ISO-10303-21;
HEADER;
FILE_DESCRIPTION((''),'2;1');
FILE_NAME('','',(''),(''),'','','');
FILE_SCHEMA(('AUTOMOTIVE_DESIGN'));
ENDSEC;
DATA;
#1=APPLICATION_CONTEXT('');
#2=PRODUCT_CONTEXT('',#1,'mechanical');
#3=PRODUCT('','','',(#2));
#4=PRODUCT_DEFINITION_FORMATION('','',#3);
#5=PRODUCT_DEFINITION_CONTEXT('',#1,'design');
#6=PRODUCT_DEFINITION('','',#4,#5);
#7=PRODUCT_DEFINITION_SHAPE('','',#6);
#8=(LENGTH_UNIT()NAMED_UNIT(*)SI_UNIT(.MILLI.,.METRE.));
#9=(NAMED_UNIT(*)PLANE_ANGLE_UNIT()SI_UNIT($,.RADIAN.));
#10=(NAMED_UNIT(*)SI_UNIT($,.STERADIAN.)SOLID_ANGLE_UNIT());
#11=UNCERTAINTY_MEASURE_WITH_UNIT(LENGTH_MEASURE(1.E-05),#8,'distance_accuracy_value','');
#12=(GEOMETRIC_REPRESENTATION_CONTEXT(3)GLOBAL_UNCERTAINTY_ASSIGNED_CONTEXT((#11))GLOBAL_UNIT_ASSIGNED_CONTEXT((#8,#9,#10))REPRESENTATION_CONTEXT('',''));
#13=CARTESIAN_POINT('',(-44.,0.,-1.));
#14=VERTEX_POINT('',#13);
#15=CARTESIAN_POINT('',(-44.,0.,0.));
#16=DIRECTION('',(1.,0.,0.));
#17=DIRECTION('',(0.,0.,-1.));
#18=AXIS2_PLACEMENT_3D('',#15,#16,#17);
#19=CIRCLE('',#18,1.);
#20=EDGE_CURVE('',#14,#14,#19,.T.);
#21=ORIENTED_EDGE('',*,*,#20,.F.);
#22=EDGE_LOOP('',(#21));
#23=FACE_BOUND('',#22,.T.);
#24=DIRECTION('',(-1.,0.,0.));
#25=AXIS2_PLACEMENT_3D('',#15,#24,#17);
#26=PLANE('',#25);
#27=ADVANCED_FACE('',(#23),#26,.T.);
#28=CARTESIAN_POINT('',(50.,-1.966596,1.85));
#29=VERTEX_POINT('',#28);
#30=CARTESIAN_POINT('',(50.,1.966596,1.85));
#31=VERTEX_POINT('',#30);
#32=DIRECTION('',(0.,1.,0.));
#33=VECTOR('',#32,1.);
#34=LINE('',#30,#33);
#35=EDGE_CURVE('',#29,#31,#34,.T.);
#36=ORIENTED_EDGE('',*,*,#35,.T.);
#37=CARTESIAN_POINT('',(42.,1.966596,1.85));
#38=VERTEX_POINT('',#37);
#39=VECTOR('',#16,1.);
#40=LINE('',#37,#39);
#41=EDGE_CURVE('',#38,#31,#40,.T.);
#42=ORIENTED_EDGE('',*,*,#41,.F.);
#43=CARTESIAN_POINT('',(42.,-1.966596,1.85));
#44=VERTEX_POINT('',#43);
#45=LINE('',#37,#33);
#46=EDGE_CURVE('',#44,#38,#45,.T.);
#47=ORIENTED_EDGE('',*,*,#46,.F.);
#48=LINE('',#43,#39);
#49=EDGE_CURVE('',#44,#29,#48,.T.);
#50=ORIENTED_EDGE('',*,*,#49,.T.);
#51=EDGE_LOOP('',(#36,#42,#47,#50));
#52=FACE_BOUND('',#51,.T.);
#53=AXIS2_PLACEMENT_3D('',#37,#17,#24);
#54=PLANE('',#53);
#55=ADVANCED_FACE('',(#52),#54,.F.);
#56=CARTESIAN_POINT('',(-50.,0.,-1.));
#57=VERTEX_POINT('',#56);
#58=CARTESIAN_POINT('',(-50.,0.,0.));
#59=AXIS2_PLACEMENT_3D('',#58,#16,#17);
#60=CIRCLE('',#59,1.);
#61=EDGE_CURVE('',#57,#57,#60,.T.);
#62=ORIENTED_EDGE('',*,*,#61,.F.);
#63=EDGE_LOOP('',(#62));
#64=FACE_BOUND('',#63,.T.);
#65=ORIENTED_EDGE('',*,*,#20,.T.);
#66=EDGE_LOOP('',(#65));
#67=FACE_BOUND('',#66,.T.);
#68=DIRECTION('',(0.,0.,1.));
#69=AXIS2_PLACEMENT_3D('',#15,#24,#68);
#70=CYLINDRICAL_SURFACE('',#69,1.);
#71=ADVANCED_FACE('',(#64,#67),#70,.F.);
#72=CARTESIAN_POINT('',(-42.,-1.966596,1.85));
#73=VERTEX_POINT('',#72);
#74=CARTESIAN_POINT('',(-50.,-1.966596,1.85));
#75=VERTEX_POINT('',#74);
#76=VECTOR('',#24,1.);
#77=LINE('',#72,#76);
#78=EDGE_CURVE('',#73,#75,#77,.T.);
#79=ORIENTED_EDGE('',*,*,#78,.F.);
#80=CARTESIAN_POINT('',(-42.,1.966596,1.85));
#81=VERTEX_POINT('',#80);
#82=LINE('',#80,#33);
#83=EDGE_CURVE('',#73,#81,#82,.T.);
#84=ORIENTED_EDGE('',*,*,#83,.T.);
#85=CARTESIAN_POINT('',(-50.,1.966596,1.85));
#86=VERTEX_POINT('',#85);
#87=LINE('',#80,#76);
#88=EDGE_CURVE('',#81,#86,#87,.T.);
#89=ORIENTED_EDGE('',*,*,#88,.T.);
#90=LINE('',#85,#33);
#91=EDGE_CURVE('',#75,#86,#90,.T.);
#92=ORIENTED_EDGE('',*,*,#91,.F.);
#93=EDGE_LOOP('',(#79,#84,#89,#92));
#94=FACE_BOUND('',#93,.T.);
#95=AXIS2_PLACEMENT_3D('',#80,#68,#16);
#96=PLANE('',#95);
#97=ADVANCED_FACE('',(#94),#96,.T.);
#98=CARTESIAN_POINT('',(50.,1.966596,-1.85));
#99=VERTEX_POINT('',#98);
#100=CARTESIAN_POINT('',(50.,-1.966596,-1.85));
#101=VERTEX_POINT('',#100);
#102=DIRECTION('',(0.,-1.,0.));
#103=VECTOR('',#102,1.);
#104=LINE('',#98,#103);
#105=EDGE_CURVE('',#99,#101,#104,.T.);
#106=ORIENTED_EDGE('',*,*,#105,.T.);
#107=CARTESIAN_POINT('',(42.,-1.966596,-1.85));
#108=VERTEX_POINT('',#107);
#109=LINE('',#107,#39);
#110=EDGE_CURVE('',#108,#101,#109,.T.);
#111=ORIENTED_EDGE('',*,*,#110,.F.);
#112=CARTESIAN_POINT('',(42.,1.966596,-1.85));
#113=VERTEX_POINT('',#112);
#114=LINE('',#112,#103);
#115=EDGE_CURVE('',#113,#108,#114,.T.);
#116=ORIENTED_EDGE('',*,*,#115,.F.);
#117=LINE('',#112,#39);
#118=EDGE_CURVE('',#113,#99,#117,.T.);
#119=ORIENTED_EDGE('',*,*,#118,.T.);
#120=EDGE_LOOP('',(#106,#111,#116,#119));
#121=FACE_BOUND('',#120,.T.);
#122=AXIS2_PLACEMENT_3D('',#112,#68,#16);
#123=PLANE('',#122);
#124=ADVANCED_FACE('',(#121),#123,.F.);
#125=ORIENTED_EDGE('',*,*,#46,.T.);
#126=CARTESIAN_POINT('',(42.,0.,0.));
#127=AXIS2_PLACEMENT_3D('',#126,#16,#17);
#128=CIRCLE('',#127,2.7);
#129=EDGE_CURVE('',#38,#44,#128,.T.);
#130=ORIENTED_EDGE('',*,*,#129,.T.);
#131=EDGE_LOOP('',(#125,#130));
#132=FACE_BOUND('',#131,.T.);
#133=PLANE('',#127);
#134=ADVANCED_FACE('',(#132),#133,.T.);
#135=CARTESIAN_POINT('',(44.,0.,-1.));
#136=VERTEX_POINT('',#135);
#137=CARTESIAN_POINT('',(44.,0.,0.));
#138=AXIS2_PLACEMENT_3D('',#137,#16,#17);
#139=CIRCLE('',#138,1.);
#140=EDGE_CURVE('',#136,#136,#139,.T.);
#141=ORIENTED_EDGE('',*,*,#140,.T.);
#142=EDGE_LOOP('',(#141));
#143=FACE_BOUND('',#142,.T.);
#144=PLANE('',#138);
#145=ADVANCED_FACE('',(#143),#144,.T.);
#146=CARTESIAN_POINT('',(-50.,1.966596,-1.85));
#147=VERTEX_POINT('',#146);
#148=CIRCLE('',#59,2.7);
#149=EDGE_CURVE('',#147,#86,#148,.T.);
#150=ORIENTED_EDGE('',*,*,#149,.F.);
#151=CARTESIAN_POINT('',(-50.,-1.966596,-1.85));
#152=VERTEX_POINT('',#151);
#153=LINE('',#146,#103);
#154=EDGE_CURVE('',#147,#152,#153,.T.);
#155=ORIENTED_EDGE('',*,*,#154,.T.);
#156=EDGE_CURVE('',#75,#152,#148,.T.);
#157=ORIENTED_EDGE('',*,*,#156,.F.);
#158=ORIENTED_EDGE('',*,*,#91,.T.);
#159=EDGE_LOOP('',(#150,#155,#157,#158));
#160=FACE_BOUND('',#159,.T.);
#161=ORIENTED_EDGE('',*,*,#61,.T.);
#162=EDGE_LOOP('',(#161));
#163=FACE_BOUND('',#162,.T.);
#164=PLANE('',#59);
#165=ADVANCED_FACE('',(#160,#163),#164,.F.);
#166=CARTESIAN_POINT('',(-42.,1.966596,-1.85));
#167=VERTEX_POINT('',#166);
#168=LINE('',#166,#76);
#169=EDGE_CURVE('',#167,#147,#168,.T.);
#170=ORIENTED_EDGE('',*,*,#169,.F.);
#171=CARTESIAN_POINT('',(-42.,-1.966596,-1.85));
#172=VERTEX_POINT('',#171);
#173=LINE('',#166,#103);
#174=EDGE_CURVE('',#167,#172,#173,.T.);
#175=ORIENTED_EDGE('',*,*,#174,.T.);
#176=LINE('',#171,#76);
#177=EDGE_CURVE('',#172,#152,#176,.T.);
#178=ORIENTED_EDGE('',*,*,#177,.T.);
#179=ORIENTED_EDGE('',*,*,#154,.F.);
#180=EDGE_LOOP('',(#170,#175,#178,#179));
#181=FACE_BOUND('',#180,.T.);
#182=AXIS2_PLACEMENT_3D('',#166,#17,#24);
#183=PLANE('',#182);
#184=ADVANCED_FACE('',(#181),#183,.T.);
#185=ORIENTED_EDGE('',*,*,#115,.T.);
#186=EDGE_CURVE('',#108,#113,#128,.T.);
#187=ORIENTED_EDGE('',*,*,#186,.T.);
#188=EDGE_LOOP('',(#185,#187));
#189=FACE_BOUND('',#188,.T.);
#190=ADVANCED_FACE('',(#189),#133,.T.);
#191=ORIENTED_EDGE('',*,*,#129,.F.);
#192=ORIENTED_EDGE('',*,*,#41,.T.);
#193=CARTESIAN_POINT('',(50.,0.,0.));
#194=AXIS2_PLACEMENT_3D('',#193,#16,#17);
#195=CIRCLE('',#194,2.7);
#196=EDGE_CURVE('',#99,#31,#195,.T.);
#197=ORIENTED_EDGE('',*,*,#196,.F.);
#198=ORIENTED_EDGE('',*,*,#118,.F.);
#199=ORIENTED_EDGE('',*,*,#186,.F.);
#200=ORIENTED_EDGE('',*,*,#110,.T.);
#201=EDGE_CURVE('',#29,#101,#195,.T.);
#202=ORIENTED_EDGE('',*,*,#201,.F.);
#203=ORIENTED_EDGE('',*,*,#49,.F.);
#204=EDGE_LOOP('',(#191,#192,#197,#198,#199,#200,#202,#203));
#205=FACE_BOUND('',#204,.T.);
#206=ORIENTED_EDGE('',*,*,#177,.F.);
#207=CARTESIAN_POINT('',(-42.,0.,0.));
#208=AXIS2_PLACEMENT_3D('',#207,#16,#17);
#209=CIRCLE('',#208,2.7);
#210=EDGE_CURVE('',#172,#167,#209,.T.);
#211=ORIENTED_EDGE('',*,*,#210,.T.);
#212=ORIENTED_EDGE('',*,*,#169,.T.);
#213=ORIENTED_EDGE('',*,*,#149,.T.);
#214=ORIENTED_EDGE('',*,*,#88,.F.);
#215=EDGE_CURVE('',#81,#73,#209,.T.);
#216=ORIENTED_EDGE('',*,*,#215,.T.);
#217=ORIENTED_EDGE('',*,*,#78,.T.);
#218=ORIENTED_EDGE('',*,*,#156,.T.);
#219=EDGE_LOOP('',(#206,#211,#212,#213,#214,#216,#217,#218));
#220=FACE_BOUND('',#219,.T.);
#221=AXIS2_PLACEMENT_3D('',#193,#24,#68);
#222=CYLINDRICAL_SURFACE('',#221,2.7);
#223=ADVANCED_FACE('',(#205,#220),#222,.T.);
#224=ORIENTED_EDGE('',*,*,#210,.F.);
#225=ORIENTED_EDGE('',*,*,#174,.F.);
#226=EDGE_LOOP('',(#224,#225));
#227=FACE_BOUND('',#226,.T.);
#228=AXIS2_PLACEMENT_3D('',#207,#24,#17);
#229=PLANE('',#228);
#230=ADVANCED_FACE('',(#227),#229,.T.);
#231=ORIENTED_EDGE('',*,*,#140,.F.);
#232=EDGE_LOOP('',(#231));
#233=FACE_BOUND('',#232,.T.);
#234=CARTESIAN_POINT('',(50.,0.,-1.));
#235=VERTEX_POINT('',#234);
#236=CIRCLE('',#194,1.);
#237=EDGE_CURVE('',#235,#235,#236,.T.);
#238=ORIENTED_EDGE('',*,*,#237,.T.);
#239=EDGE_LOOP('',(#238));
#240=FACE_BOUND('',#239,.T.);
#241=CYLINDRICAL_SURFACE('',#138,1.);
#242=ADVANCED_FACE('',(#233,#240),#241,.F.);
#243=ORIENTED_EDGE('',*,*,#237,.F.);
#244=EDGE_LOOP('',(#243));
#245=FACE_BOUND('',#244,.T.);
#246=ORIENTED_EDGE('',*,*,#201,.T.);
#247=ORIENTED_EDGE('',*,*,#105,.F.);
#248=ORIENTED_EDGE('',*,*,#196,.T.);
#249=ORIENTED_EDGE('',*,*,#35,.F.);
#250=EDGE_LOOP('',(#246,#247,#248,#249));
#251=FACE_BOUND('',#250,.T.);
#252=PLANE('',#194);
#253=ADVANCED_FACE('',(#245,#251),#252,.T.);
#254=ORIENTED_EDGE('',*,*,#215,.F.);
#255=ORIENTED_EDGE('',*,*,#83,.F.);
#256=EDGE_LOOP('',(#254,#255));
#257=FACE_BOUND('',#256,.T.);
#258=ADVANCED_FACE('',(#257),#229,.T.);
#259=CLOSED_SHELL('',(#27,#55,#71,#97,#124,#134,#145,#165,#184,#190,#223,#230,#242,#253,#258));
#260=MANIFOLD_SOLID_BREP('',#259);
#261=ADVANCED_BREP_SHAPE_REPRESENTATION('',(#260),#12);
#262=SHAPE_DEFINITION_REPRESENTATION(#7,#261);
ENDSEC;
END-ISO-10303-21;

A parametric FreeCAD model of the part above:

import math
import FreeCAD as App
import Part
import Sketcher

doc = App.newDocument("Part")
body = doc.addObject("PartDesign::Body", "Body")

sketch1 = doc.addObject("Sketcher::SketchObject", "Sketch")
body.addObject(sketch1)
sketch1.AttachmentSupport = (doc.YZ_Plane, [""])
sketch1.MapMode = "FlatFace"
sketch1.addGeometry(Part.Circle(App.Vector(0, 0, 0), App.Vector(0, 0, 1), 2.7), False)
sketch1.addConstraint(Sketcher.Constraint("Coincident", 0, 3, -1, 1))
sketch1.addConstraint(Sketcher.Constraint("Diameter", 0, 5.4))
pad1 = doc.addObject("PartDesign::Pad", "Pad")
body.addObject(pad1)
pad1.Profile = sketch1
pad1.Length = 100
pad1.Midplane = True

sketch2 = doc.addObject("Sketcher::SketchObject", "Sketch001")
body.addObject(sketch2)
sketch2.AttachmentSupport = (doc.YZ_Plane, [""])
sketch2.MapMode = "FlatFace"
sketch2.AttachmentOffset = App.Placement(App.Vector(0, 0, 50), App.Rotation())
sketch2.addGeometry(Part.LineSegment(App.Vector(-2, 1.9, 0), App.Vector(2, 1.9, 0)), False)
sketch2.addGeometry(Part.ArcOfCircle(Part.Circle(App.Vector(0, 0, 0), App.Vector(0, 0, 1), 2.7), math.radians(43), math.radians(137)), False)
sketch2.addGeometry(Part.LineSegment(App.Vector(2, -1.9, 0), App.Vector(-2, -1.9, 0)), False)
sketch2.addGeometry(Part.ArcOfCircle(Part.Circle(App.Vector(0, 0, 0), App.Vector(0, 0, 1), 2.7), math.radians(-137), math.radians(-43)), False)
sketch2.addConstraint(Sketcher.Constraint("Coincident", 0, 1, 1, 2))
sketch2.addConstraint(Sketcher.Constraint("Coincident", 1, 1, 0, 2))
sketch2.addConstraint(Sketcher.Constraint("Coincident", 2, 1, 3, 2))
sketch2.addConstraint(Sketcher.Constraint("Coincident", 3, 1, 2, 2))
sketch2.addConstraint(Sketcher.Constraint("Horizontal", 0))
sketch2.addConstraint(Sketcher.Constraint("Horizontal", 2))
sketch2.addConstraint(Sketcher.Constraint("Coincident", 1, 3, -1, 1))
sketch2.addConstraint(Sketcher.Constraint("Coincident", 3, 3, -1, 1))
sketch2.addConstraint(Sketcher.Constraint("Equal", 1, 3))
sketch2.addConstraint(Sketcher.Constraint("Vertical", 1, 1, 2, 1))
sketch2.addConstraint(Sketcher.Constraint("Radius", 1, 2.7))
sketch2.addConstraint(Sketcher.Constraint("DistanceY", 2, 1, 1, 1, 3.7))
pocket1 = doc.addObject("PartDesign::Pocket", "Pocket")
body.addObject(pocket1)
pocket1.Profile = sketch2
pocket1.Length = 8

sketch3 = doc.addObject("Sketcher::SketchObject", "Sketch002")
body.addObject(sketch3)
sketch3.AttachmentSupport = (doc.YZ_Plane, [""])
sketch3.MapMode = "FlatFace"
sketch3.AttachmentOffset = App.Placement(App.Vector(0, 0, 50), App.Rotation())
sketch3.addGeometry(Part.Circle(App.Vector(0, 0, 0), App.Vector(0, 0, 1), 1), False)
sketch3.addConstraint(Sketcher.Constraint("Coincident", 0, 3, -1, 1))
sketch3.addConstraint(Sketcher.Constraint("Diameter", 0, 2.0))
pocket2 = doc.addObject("PartDesign::Pocket", "Pocket001")
body.addObject(pocket2)
pocket2.Profile = sketch3
pocket2.Length = 6
doc.recompute()

mirrored = doc.addObject("PartDesign::Mirrored", "Mirrored")
body.addObject(mirrored)
mirrored.Originals = [pocket1, pocket2]
mirrored.MirrorPlane = (doc.YZ_Plane, [""])
body.Tip = mirrored

doc.recompute()
